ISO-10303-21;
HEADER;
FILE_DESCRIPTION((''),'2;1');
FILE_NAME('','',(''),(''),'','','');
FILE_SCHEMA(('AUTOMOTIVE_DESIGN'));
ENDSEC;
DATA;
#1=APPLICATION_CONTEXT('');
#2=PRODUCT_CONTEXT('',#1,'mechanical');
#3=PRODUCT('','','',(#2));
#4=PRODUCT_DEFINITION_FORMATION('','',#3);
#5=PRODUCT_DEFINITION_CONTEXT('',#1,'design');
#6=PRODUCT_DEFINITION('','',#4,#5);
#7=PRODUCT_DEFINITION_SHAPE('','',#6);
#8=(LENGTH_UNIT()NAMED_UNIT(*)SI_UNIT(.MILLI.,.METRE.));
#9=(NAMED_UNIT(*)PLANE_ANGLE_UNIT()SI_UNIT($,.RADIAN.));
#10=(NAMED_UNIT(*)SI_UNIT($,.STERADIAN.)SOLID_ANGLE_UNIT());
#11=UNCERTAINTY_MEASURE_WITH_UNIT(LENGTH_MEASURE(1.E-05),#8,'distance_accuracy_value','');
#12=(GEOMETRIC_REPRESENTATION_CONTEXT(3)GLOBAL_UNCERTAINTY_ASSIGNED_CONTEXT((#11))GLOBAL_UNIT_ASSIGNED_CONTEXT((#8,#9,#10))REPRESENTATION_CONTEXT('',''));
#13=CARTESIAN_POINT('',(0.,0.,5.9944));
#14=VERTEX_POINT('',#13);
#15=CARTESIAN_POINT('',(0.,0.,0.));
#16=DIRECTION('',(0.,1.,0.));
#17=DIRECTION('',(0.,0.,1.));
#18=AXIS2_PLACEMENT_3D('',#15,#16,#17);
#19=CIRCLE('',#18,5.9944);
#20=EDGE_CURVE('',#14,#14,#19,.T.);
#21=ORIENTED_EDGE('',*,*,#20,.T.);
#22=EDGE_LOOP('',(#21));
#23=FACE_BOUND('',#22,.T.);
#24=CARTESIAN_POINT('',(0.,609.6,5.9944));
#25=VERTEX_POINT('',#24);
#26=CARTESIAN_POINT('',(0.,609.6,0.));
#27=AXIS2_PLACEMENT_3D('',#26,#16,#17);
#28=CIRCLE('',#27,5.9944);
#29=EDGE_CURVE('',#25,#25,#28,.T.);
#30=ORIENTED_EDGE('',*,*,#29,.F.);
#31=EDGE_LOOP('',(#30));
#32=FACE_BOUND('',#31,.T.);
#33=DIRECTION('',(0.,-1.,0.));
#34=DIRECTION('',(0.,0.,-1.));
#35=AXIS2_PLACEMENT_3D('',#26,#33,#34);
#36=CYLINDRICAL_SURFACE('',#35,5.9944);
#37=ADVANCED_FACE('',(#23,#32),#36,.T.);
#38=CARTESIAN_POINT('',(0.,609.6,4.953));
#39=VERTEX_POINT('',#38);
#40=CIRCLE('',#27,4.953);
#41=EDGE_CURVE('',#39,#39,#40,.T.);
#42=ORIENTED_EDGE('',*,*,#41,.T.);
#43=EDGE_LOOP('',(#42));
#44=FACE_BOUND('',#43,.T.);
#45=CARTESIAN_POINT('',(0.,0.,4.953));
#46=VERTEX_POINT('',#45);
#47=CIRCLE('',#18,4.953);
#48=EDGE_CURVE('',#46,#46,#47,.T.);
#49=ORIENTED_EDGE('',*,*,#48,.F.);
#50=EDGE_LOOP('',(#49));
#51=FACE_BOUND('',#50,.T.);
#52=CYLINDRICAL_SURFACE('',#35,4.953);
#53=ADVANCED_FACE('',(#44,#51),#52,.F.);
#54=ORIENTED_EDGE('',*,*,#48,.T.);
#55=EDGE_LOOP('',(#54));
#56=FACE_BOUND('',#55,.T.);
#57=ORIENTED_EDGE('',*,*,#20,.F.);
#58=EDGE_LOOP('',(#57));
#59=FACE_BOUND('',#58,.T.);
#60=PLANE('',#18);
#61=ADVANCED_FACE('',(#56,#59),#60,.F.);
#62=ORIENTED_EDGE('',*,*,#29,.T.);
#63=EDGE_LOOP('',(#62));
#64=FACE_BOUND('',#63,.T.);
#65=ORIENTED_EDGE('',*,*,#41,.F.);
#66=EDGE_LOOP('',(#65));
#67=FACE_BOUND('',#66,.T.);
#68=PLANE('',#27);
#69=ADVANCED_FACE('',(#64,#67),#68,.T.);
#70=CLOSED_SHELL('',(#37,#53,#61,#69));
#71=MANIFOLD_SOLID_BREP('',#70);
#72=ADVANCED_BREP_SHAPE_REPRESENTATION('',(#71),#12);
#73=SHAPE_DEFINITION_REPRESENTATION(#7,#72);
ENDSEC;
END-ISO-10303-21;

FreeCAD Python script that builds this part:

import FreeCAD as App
import Part
import Sketcher
from FreeCAD import Vector
Q = App.Units.Quantity

doc = App.newDocument("Part")
body = doc.addObject("PartDesign::Body", "Body")

# Sketch on XZ plane
sketch1 = body.newObject("Sketcher::SketchObject", "Sketch")
sketch1.AttachmentSupport = (doc.getObject("XZ_Plane"), [""])
sketch1.MapMode = "FlatFace"
sketch1.addGeometry(Part.Circle(Vector(0, 0, 0), Vector(0, 0, 1), 6), False)
sketch1.addGeometry(Part.Circle(Vector(0, 0, 0), Vector(0, 0, 1), 5), False)
sketch1.addConstraint(Sketcher.Constraint("Coincident", 0, 3, -1, 1))
sketch1.addConstraint(Sketcher.Constraint("Coincident", 1, 3, -1, 1))
sketch1.addConstraint(Sketcher.Constraint("Diameter", 1, Q("0.39 in")))
sketch1.addConstraint(Sketcher.Constraint("Diameter", 0, Q("0.472 in")))
pad1 = body.newObject("PartDesign::Pad", "Pad")
pad1.Profile = sketch1
pad1.Length = Q("24 in")
pad1.Reversed = True

doc.recompute()
